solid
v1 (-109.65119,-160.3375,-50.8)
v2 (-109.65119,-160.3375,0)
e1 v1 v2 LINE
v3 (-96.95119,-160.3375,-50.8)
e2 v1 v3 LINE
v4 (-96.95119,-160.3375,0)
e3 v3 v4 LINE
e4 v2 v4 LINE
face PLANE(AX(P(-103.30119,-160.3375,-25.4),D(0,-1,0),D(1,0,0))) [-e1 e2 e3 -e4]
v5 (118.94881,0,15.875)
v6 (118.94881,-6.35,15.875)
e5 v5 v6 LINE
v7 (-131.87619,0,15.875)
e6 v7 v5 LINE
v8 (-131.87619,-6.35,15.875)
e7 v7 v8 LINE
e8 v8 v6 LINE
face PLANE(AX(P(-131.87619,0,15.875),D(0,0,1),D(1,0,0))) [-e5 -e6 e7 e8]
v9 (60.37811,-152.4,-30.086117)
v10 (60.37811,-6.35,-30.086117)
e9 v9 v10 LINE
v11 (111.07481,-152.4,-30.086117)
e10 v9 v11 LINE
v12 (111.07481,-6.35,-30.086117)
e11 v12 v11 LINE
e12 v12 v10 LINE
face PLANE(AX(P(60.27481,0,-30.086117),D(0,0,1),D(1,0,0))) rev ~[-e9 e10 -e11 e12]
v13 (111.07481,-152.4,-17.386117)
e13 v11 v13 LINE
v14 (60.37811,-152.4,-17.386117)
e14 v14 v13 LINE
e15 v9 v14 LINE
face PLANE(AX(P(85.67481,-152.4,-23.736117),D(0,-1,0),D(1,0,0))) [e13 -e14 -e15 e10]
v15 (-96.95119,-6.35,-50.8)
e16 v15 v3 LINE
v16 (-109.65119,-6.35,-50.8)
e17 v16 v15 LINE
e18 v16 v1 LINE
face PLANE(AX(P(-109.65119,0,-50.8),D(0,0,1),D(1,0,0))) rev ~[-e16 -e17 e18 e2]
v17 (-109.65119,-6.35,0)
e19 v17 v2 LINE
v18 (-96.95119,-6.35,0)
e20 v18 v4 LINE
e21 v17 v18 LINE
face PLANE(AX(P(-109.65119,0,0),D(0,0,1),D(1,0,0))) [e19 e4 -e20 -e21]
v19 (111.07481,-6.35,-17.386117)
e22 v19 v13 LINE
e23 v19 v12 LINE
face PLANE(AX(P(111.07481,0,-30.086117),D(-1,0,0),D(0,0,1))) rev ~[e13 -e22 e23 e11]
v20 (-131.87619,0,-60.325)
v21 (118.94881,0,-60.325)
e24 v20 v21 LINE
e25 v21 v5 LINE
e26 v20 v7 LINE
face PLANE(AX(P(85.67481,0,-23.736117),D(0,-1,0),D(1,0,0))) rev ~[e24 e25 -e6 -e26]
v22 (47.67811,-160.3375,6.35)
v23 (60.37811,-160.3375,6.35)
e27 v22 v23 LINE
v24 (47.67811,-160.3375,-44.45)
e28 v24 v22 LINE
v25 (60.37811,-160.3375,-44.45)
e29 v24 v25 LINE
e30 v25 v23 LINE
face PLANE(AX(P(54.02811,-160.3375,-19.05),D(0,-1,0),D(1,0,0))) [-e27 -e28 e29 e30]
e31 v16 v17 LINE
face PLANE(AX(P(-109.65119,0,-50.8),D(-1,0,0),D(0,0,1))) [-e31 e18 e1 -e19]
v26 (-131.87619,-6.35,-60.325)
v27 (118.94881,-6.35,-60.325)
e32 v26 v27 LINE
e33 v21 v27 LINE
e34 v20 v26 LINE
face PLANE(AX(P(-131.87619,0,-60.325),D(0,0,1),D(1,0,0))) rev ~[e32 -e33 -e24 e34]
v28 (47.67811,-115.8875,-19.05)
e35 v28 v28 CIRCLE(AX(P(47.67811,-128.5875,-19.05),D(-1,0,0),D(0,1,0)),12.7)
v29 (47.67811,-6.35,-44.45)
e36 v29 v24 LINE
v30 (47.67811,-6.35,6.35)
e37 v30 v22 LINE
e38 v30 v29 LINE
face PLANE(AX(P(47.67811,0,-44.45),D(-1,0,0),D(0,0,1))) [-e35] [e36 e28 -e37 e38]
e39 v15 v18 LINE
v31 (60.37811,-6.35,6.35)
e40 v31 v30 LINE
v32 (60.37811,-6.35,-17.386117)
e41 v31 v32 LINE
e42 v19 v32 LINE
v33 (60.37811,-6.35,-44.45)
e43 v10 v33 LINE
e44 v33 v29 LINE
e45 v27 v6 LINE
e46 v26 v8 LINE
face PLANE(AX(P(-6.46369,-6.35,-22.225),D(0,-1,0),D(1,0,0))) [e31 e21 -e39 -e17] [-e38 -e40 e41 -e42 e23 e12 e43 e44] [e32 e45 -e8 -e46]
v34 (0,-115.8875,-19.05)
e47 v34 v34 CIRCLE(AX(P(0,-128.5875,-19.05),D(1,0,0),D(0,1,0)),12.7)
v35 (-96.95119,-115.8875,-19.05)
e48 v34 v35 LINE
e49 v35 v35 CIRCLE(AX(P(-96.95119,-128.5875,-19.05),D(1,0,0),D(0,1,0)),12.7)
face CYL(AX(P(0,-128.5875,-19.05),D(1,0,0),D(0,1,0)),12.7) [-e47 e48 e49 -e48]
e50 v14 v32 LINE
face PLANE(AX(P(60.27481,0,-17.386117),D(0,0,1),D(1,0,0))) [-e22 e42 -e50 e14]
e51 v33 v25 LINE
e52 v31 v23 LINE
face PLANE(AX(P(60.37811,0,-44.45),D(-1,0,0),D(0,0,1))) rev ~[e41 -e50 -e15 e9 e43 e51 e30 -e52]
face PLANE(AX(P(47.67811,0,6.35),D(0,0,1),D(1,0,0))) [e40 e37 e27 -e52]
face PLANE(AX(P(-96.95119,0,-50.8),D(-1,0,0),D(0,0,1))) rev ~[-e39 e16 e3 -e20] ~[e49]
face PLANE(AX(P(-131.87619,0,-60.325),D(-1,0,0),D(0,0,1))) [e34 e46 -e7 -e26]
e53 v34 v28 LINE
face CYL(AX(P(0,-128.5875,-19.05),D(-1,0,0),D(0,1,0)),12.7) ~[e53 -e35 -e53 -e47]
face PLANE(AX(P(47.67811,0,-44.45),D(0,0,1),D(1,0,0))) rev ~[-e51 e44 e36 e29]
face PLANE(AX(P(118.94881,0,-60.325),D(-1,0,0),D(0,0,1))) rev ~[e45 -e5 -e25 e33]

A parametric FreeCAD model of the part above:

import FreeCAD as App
import Part
import Sketcher

V = App.Vector
Q = App.Units.Quantity


def add_polygon(sketch, points):
    """Adds a closed chain of lines whose ends are joined by coincident constraints."""
    first, n = sketch.GeometryCount, len(points)
    for a, b in zip(points, points[1:] + points[:1]):
        sketch.addGeometry(Part.LineSegment(App.Vector(*a, 0), App.Vector(*b, 0)), False)
    for i in range(n):
        sketch.addConstraint(Sketcher.Constraint("Coincident", first + i, 2, first + (i + 1) % n, 1))

doc = App.newDocument("Part")
body = doc.addObject("PartDesign::Body", "Body")

# Sketch on XZ plane
sketch1 = body.newObject("Sketcher::SketchObject", "Sketch")
sketch1.AttachmentSupport = (doc.getObject("XZ_Plane"), [""])
sketch1.MapMode = "FlatFace"
add_polygon(sketch1, [(-132, 16), (-132, -60), (119, -60), (119, 16)])  # lines 0-3
add_polygon(sketch1, [(-97, -51), (-110, -51), (-110, 0), (-97, 0)])  # lines 4-7
sketch1.addConstraint([
    Sketcher.Constraint("Vertical", 0),
    Sketcher.Constraint("Horizontal", 1),
    Sketcher.Constraint("Vertical", 2),
    Sketcher.Constraint("Horizontal", 3),
    Sketcher.Constraint("Horizontal", 4),
    Sketcher.Constraint("Vertical", 5),
    Sketcher.Constraint("Horizontal", 6),
    Sketcher.Constraint("Vertical", 7),
    Sketcher.Constraint("PointOnObject", 5, 2, -1),
    Sketcher.Constraint("DistanceY", 0, 2, 0, 1, Q("3 in")),
    Sketcher.Constraint("DistanceY", 5, 1, 5, 2, Q("2 in")),
    Sketcher.Constraint("DistanceX", 4, 2, 4, 1, Q("0.5 in")),
    Sketcher.Constraint("DistanceX", 4, 2, 1, 2, Q("9 in")),
    Sketcher.Constraint("DistanceX", 1, 1, 1, 2, Q("9.875 in")),
    Sketcher.Constraint("DistanceY", 0, 2, -1, 1, Q("2.375 in")),
    Sketcher.Constraint("DistanceX", 0, 2, -1, 1, 131.87619),
])
pad1 = body.newObject("PartDesign::Pad", "Pad")
pad1.Profile = sketch1
pad1.Length = Q("0.25 in")

# Sketch on XZ plane
sketch2 = body.newObject("Sketcher::SketchObject", "Sketch001")
sketch2.AttachmentSupport = (doc.getObject("XZ_Plane"), [""])
sketch2.MapMode = "FlatFace"
add_polygon(sketch2, [(-110, 0), (-110, -51), (-97, -51), (-97, 0)])  # lines 0-3
sketch2.addConstraint([
    Sketcher.Constraint("Vertical", 0),
    Sketcher.Constraint("Horizontal", 1),
    Sketcher.Constraint("Vertical", 2),
    Sketcher.Constraint("Horizontal", 3),
    Sketcher.Constraint("PointOnObject", 2, 2, -1),
    Sketcher.Constraint("DistanceY", 0, 2, 0, 1, Q("2 in")),
    Sketcher.Constraint("DistanceX", 1, 1, 1, 2, Q("0.5 in")),
    Sketcher.Constraint("DistanceX", 0, 2, -1, 1, 109.65119),
])
pad2 = body.newObject("PartDesign::Pad", "Pad001")
pad2.Profile = sketch2
pad2.Length = Q("6.3125 in")

# Sketch on XZ plane
sketch3 = body.newObject("Sketcher::SketchObject", "Sketch002")
sketch3.AttachmentSupport = (doc.getObject("XZ_Plane"), [""])
sketch3.MapMode = "FlatFace"
add_polygon(sketch3, [(48, 6), (48, -44), (60, -44), (60, 6)])  # lines 0-3
sketch3.addConstraint([
    Sketcher.Constraint("Vertical", 0),
    Sketcher.Constraint("Horizontal", 1),
    Sketcher.Constraint("Vertical", 2),
    Sketcher.Constraint("Horizontal", 3),
    Sketcher.Constraint("DistanceY", 0, 2, 0, 1, Q("2 in")),
    Sketcher.Constraint("DistanceX", 1, 1, 1, 2, Q("0.5 in")),
    Sketcher.Constraint("DistanceY", 0, 2, -1, 1, Q("1.75 in")),
    Sketcher.Constraint("DistanceX", -1, 1, 0, 2, 47.67811),
])
pad3 = body.newObject("PartDesign::Pad", "Pad002")
pad3.Profile = sketch3
pad3.Length = Q("6.3125 in")

# Sketch on XZ plane
sketch4 = body.newObject("Sketcher::SketchObject", "Sketch003")
sketch4.AttachmentSupport = (doc.getObject("XZ_Plane"), [""])
sketch4.MapMode = "FlatFace"
add_polygon(sketch4, [(60, -17), (60, -30), (111, -30), (111, -17)])  # lines 0-3
sketch4.addConstraint([
    Sketcher.Constraint("Vertical", 0),
    Sketcher.Constraint("Horizontal", 1),
    Sketcher.Constraint("Vertical", 2),
    Sketcher.Constraint("Horizontal", 3),
    Sketcher.Constraint("DistanceX", 1, 1, 1, 2, Q("2 in")),
    Sketcher.Constraint("DistanceY", 0, 2, 0, 1, Q("0.5 in")),
    Sketcher.Constraint("DistanceX", -1, 1, 0, 2, 60.27481),
    Sketcher.Constraint("DistanceY", 0, 2, -1, 1, 30.086117),
])
pad4 = body.newObject("PartDesign::Pad", "Pad003")
pad4.Profile = sketch4
pad4.Length = Q("6 in")

# Sketch on YZ plane
sketch5 = body.newObject("Sketcher::SketchObject", "Sketch004")
sketch5.AttachmentSupport = (doc.getObject("YZ_Plane"), [""])
sketch5.MapMode = "FlatFace"
sketch5.addGeometry(Part.Circle(V(-129, -19, 0), V(0, 0, 1), 13), False)
sketch5.addConstraint([
    Sketcher.Constraint("Diameter", 0, Q("1 in")),
    Sketcher.Constraint("DistanceY", 0, 3, -1, 1, Q("0.75 in")),
    Sketcher.Constraint("DistanceX", 0, 3, -1, 1, Q("5.0625 in")),
])
pad5 = body.newObject("PartDesign::Pad", "Pad004")
pad5.Profile = sketch5
pad5.Type = "TwoLengths"
pad5.Length = Q("2.19 in")
pad5.Length2 = Q("3.82 in")

doc.recompute()
